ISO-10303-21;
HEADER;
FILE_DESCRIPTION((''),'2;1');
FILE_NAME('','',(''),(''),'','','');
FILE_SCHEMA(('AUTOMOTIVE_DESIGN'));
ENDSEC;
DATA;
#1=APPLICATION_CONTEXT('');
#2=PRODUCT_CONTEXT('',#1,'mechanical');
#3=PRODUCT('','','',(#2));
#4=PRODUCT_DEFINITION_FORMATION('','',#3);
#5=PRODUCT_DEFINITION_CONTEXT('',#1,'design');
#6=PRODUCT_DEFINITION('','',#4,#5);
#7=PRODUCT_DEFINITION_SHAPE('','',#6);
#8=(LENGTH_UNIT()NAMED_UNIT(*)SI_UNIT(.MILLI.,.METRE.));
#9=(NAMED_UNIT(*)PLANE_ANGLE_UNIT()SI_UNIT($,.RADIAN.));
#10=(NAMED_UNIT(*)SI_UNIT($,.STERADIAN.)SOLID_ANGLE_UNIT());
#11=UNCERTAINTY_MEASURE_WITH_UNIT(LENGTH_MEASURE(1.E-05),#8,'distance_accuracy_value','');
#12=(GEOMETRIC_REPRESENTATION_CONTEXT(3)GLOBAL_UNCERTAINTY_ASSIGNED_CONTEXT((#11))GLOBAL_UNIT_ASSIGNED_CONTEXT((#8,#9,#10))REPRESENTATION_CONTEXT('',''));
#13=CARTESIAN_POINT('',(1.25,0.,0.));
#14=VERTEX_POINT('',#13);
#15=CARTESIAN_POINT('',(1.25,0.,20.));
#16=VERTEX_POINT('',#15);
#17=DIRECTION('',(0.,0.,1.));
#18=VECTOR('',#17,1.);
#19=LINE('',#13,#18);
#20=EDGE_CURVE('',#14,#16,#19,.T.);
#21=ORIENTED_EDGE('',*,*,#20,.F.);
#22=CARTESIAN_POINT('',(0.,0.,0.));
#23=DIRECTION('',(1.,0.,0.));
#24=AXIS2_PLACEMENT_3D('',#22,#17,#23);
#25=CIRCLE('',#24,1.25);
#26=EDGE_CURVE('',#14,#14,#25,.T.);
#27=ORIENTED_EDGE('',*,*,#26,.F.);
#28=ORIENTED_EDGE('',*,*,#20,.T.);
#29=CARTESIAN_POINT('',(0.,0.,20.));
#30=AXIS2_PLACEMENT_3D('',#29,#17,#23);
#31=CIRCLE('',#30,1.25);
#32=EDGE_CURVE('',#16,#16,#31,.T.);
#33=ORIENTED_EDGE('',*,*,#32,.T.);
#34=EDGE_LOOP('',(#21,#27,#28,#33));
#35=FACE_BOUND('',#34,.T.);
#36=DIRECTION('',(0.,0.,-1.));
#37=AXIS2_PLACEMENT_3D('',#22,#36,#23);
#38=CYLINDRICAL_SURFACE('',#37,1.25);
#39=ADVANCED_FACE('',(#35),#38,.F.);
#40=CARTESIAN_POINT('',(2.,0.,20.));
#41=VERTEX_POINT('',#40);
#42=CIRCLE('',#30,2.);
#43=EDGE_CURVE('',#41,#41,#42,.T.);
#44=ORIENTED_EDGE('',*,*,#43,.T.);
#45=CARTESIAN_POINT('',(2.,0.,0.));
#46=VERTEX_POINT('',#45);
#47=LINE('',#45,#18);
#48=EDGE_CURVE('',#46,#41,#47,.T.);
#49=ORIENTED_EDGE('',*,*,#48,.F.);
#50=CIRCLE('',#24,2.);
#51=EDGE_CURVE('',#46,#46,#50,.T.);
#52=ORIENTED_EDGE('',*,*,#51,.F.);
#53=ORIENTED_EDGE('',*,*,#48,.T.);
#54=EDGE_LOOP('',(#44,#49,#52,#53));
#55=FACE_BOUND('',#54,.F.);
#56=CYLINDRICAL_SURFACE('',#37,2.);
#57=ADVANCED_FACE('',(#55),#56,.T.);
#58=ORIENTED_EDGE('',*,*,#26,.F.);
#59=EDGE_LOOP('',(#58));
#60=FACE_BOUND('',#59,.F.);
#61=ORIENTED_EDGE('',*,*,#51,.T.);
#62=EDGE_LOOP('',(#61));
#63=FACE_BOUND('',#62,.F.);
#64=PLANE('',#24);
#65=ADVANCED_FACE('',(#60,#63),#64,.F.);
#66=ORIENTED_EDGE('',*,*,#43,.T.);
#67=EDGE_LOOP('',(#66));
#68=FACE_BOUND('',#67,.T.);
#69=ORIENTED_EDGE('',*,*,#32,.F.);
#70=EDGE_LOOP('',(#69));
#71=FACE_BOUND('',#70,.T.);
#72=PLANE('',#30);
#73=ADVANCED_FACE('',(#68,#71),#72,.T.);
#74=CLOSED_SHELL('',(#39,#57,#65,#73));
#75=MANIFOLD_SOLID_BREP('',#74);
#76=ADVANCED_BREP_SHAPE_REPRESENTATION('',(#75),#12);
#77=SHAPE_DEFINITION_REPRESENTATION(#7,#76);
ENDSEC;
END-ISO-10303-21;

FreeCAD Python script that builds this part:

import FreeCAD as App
import Part
import Sketcher
from FreeCAD import Vector

doc = App.newDocument("Part")
body = doc.addObject("PartDesign::Body", "Body")

# Sketch on XY plane
sketch1 = body.newObject("Sketcher::SketchObject", "Sketch")
sketch1.AttachmentSupport = (doc.getObject("XY_Plane"), [""])
sketch1.MapMode = "FlatFace"
sketch1.addGeometry(Part.Circle(Vector(0, 0, 0), Vector(0, 0, 1), 2), False)
sketch1.addConstraint(Sketcher.Constraint("Coincident", 0, 3, -1, 1))
sketch1.addConstraint(Sketcher.Constraint("Diameter", 0, 4.0))
pad1 = body.newObject("PartDesign::Pad", "Pad")
pad1.Profile = sketch1
pad1.Length = 20

# Sketch on XY plane
sketch2 = body.newObject("Sketcher::SketchObject", "Sketch001")
sketch2.AttachmentSupport = (doc.getObject("XY_Plane"), [""])
sketch2.MapMode = "FlatFace"
sketch2.addGeometry(Part.Circle(Vector(0, 0, 0), Vector(0, 0, 1), 1.25), False)
sketch2.addConstraint(Sketcher.Constraint("Coincident", 0, 3, -1, 1))
sketch2.addConstraint(Sketcher.Constraint("Diameter", 0, 2.5))
pocket1 = body.newObject("PartDesign::Pocket", "Pocket")
pocket1.Profile = sketch2
pocket1.Length = 20
pocket1.Reversed = True

doc.recompute()
